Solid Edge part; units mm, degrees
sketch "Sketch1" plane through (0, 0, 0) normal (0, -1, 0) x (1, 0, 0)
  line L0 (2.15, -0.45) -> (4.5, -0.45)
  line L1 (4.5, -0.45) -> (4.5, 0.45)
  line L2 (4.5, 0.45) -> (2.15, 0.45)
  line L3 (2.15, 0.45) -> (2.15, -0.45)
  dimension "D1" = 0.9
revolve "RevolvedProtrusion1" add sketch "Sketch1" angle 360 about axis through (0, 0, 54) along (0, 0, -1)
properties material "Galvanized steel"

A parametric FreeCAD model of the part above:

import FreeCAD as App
import Part
import Sketcher

doc = App.newDocument("Part")
body = doc.addObject("PartDesign::Body", "Body")

# Sketch on XZ plane
sketch1 = doc.addObject("Sketcher::SketchObject", "Sketch")
body.addObject(sketch1)
sketch1.AttachmentSupport = (doc.XZ_Plane, [""])
sketch1.MapMode = "FlatFace"
sketch1.addGeometry([
    Part.LineSegment(App.Vector(2.15, 0.45, 0), App.Vector(2.15, -0.45, 0)),
    Part.LineSegment(App.Vector(2.15, -0.45, 0), App.Vector(4.5, -0.45, 0)),
    Part.LineSegment(App.Vector(4.5, -0.45, 0), App.Vector(4.5, 0.45, 0)),
    Part.LineSegment(App.Vector(4.5, 0.45, 0), App.Vector(2.15, 0.45, 0)),
], False)
sketch1.addConstraint([
    Sketcher.Constraint("Coincident", 0, 2, 1, 1),
    Sketcher.Constraint("Coincident", 1, 2, 2, 1),
    Sketcher.Constraint("Coincident", 2, 2, 3, 1),
    Sketcher.Constraint("Coincident", 3, 2, 0, 1),
    Sketcher.Constraint("Vertical", 0),
    Sketcher.Constraint("Horizontal", 1),
    Sketcher.Constraint("Vertical", 2),
    Sketcher.Constraint("Horizontal", 3),
    Sketcher.Constraint("DistanceX", -1, 1, 1, 2, 4.5),
    Sketcher.Constraint("DistanceY", 0, 2, 0, 1, 0.9),
    Sketcher.Constraint("DistanceX", 1, 1, 1, 2, 2.35),
    Sketcher.Constraint("DistanceY", 0, 2, -1, 1, 0.45),
])
revolution = doc.addObject("PartDesign::Revolution", "Revolution")
body.addObject(revolution)
revolution.Profile = sketch1
revolution.ReferenceAxis = (sketch1, ["V_Axis"])
revolution.Angle = 360

doc.recompute()
